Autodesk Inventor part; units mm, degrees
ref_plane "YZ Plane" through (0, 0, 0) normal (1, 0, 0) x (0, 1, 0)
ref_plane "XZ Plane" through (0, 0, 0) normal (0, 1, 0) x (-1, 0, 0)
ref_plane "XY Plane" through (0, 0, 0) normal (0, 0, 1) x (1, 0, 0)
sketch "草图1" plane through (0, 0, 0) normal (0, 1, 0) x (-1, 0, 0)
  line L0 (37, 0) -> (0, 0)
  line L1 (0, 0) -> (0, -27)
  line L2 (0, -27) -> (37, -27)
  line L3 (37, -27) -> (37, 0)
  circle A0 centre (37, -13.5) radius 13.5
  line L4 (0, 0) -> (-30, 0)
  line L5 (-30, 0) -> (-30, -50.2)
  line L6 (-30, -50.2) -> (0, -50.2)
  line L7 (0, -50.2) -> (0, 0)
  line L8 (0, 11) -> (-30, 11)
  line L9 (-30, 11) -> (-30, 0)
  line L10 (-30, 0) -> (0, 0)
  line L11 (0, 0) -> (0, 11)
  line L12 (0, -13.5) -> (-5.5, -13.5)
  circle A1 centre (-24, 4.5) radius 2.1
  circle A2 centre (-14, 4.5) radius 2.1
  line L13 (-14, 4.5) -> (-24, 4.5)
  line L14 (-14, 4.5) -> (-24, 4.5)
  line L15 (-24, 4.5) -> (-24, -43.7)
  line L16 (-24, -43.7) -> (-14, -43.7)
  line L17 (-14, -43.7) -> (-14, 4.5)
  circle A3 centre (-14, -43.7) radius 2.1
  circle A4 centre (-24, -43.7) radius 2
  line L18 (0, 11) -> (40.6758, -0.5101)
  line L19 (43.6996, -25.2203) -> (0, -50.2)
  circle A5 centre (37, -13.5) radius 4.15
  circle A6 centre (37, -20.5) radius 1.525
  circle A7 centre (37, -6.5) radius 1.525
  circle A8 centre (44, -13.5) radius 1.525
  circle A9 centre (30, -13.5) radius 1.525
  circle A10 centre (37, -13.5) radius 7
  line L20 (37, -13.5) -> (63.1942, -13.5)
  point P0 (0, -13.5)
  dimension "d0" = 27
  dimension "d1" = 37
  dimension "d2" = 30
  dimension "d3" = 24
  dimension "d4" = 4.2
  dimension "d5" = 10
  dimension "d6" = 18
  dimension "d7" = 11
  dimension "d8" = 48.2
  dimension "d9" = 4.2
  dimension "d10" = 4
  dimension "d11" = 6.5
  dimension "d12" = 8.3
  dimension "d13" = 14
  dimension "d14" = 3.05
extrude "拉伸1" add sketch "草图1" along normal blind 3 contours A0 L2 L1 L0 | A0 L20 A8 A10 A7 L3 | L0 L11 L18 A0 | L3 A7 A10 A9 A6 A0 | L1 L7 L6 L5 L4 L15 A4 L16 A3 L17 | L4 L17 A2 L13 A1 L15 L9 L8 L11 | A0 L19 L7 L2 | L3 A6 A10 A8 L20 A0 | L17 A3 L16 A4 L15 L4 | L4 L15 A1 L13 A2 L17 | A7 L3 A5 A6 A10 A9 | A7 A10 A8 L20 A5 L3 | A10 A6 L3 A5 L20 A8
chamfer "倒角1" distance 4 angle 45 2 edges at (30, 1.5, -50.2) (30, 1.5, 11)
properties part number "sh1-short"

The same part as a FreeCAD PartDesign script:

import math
import FreeCAD as App
import Part
import Sketcher
from FreeCAD import Vector


def edges_at(feature, points):
    """Names of the edges that pass closest to the given points."""
    edges = feature.Shape.Edges
    near = lambda p: min(range(len(edges)), key=lambda i: edges[i].distToShape(Part.Vertex(*p))[0])
    return sorted({f"Edge{near(p) + 1}" for p in points})

doc = App.newDocument("Part")
params = doc.addObject("Spreadsheet::Sheet", "Params")
for row, (alias, value) in enumerate([
    ("sketch1_diameter", "4 mm"),
    ("sketch1_diameter2", "4.2 mm"),
    ("sketch1_diameter3", "8.3 mm"),
    ("sketch1_radius", "13.5 mm"),
    ("sketch1_diameter4", "3.05 mm"),
    ("pad1_length", "3 mm"),
    ("chamfer_size", "4 mm"),
], start=1):
    params.set(f"A{row}", alias)
    params.set(f"B{row}", "=" + value)
    params.setAlias(f"B{row}", alias)

body = doc.addObject("PartDesign::Body", "Body")

# Sketch on XZ plane
sketch1 = body.newObject("Sketcher::SketchObject", "Sketch")
sketch1.AttachmentSupport = (doc.getObject("XZ_Plane"), [""])
sketch1.MapMode = "FlatFace"
sketch1.addGeometry([
    Part.LineSegment(Vector(0, -50.2, 0), Vector(-43.7, -25.2, 0)),  # 0
    Part.ArcOfCircle(Part.Circle(Vector(-37, -13.5, 0), Vector(0, 0, 1), 13.5), math.radians(106), math.radians(240)),  # 1
    Part.LineSegment(Vector(-40.7, -0.5, 0), Vector(0, 11, 0)),  # 2
    Part.LineSegment(Vector(0, 11, 0), Vector(30, 11, 0)),  # 3
    Part.LineSegment(Vector(30, 11, 0), Vector(30, -50.2, 0)),  # 4
    Part.LineSegment(Vector(30, -50.2, 0), Vector(0, -50.2, 0)),  # 5
    Part.Circle(Vector(-37, -6.5, 0), Vector(0, 0, 1), 1.5),  # 6
    Part.Circle(Vector(-30, -13.5, 0), Vector(0, 0, 1), 1.5),  # 7
    Part.Circle(Vector(-37, -20.5, 0), Vector(0, 0, 1), 1.5),  # 8
    Part.Circle(Vector(14, -43.7, 0), Vector(0, 0, 1), 2.1),  # 9
    Part.Circle(Vector(24, -43.7, 0), Vector(0, 0, 1), 2),  # 10
    Part.Circle(Vector(-44, -13.5, 0), Vector(0, 0, 1), 1.5),  # 11
    Part.Circle(Vector(-37, -13.5, 0), Vector(0, 0, 1), 4.2),  # 12
    Part.Circle(Vector(14, 4.5, 0), Vector(0, 0, 1), 2.1),  # 13
    Part.Circle(Vector(24, 4.5, 0), Vector(0, 0, 1), 2.1),  # 14
], False)
sketch1.addConstraint([
    Sketcher.Constraint("Tangent", 0, 2, 1, 2),
    Sketcher.Constraint("Tangent", 1, 1, 2, 1),
    Sketcher.Constraint("Coincident", 2, 2, 3, 1),
    Sketcher.Constraint("Coincident", 3, 2, 4, 1),
    Sketcher.Constraint("Coincident", 4, 2, 5, 1),
    Sketcher.Constraint("Coincident", 5, 2, 0, 1),
    Sketcher.Constraint("Horizontal", 3),
    Sketcher.Constraint("Vertical", 4),
    Sketcher.Constraint("Horizontal", 5),
    Sketcher.Constraint("Coincident", 12, 3, 1, 3),
    Sketcher.Constraint("Equal", 6, 7),
    Sketcher.Constraint("Equal", 7, 8),
    Sketcher.Constraint("Equal", 8, 11),
    Sketcher.Constraint("Equal", 9, 13),
    Sketcher.Constraint("Equal", 13, 14),
    Sketcher.Constraint("PointOnObject", 2, 2, -2),
    Sketcher.Constraint("PointOnObject", 5, 2, -2),
    Sketcher.Constraint("Horizontal", 1, 3, 7, 3),
    Sketcher.Constraint("Horizontal", 9, 3, 10, 3),
    Sketcher.Constraint("Horizontal", 7, 3, 11, 3),
    Sketcher.Constraint("Horizontal", 13, 3, 14, 3),
    Sketcher.Constraint("Vertical", 1, 3, 6, 3),
    Sketcher.Constraint("Vertical", 6, 3, 8, 3),
    Sketcher.Constraint("Vertical", 9, 3, 13, 3),
    Sketcher.Constraint("Vertical", 10, 3, 14, 3),
    Sketcher.Constraint("Diameter", 10, 4.0),
    Sketcher.Constraint("Diameter", 9, 4.2),
    Sketcher.Constraint("Diameter", 12, 8.3),
    Sketcher.Constraint("Radius", 1, 13.5),
    Sketcher.Constraint("Diameter", 6, 3.05),
    Sketcher.Constraint("DistanceX", 3, 1, 3, 2, 30.0),
    Sketcher.Constraint("DistanceX", 1, 3, -1, 1, 37.0),
    Sketcher.Constraint("DistanceX", 7, 3, -1, 1, 30.0),
    Sketcher.Constraint("DistanceX", -1, 1, 9, 3, 14.0),
    Sketcher.Constraint("DistanceX", -1, 1, 10, 3, 24.0),
    Sketcher.Constraint("DistanceY", -1, 1, 2, 2, 11.0),
    Sketcher.Constraint("DistanceY", 8, 3, 6, 3, 14.0),
    Sketcher.Constraint("DistanceX", 11, 3, 7, 3, 14.0),
    Sketcher.Constraint("DistanceY", 7, 3, 13, 3, 18.0),
    Sketcher.Constraint("DistanceY", 6, 3, 13, 3, 11.0),
    Sketcher.Constraint("DistanceY", 6, 3, -1, 1, 6.5),
    Sketcher.Constraint("DistanceY", 9, 3, 13, 3, 48.2),
    Sketcher.Constraint("DistanceY", 4, 2, 10, 3, 6.5),
])
sketch1.setExpression("Constraints[25]", "Params.sketch1_diameter")
sketch1.setExpression("Constraints[26]", "Params.sketch1_diameter2")
sketch1.setExpression("Constraints[27]", "Params.sketch1_diameter3")
sketch1.setExpression("Constraints[28]", "Params.sketch1_radius")
sketch1.setExpression("Constraints[29]", "Params.sketch1_diameter4")
pad1 = body.newObject("PartDesign::Pad", "Pad")
pad1.Profile = sketch1
pad1.setExpression("Length", "Params.pad1_length")
pad1.Reversed = True
doc.recompute()

chamfer = body.newObject("PartDesign::Chamfer", "Chamfer")
chamfer.Base = (pad1, edges_at(pad1, [(30, 1.5, -50.2), (30, 1.5, 11)]))
chamfer.setExpression("Size", "Params.chamfer_size")

doc.recompute()
